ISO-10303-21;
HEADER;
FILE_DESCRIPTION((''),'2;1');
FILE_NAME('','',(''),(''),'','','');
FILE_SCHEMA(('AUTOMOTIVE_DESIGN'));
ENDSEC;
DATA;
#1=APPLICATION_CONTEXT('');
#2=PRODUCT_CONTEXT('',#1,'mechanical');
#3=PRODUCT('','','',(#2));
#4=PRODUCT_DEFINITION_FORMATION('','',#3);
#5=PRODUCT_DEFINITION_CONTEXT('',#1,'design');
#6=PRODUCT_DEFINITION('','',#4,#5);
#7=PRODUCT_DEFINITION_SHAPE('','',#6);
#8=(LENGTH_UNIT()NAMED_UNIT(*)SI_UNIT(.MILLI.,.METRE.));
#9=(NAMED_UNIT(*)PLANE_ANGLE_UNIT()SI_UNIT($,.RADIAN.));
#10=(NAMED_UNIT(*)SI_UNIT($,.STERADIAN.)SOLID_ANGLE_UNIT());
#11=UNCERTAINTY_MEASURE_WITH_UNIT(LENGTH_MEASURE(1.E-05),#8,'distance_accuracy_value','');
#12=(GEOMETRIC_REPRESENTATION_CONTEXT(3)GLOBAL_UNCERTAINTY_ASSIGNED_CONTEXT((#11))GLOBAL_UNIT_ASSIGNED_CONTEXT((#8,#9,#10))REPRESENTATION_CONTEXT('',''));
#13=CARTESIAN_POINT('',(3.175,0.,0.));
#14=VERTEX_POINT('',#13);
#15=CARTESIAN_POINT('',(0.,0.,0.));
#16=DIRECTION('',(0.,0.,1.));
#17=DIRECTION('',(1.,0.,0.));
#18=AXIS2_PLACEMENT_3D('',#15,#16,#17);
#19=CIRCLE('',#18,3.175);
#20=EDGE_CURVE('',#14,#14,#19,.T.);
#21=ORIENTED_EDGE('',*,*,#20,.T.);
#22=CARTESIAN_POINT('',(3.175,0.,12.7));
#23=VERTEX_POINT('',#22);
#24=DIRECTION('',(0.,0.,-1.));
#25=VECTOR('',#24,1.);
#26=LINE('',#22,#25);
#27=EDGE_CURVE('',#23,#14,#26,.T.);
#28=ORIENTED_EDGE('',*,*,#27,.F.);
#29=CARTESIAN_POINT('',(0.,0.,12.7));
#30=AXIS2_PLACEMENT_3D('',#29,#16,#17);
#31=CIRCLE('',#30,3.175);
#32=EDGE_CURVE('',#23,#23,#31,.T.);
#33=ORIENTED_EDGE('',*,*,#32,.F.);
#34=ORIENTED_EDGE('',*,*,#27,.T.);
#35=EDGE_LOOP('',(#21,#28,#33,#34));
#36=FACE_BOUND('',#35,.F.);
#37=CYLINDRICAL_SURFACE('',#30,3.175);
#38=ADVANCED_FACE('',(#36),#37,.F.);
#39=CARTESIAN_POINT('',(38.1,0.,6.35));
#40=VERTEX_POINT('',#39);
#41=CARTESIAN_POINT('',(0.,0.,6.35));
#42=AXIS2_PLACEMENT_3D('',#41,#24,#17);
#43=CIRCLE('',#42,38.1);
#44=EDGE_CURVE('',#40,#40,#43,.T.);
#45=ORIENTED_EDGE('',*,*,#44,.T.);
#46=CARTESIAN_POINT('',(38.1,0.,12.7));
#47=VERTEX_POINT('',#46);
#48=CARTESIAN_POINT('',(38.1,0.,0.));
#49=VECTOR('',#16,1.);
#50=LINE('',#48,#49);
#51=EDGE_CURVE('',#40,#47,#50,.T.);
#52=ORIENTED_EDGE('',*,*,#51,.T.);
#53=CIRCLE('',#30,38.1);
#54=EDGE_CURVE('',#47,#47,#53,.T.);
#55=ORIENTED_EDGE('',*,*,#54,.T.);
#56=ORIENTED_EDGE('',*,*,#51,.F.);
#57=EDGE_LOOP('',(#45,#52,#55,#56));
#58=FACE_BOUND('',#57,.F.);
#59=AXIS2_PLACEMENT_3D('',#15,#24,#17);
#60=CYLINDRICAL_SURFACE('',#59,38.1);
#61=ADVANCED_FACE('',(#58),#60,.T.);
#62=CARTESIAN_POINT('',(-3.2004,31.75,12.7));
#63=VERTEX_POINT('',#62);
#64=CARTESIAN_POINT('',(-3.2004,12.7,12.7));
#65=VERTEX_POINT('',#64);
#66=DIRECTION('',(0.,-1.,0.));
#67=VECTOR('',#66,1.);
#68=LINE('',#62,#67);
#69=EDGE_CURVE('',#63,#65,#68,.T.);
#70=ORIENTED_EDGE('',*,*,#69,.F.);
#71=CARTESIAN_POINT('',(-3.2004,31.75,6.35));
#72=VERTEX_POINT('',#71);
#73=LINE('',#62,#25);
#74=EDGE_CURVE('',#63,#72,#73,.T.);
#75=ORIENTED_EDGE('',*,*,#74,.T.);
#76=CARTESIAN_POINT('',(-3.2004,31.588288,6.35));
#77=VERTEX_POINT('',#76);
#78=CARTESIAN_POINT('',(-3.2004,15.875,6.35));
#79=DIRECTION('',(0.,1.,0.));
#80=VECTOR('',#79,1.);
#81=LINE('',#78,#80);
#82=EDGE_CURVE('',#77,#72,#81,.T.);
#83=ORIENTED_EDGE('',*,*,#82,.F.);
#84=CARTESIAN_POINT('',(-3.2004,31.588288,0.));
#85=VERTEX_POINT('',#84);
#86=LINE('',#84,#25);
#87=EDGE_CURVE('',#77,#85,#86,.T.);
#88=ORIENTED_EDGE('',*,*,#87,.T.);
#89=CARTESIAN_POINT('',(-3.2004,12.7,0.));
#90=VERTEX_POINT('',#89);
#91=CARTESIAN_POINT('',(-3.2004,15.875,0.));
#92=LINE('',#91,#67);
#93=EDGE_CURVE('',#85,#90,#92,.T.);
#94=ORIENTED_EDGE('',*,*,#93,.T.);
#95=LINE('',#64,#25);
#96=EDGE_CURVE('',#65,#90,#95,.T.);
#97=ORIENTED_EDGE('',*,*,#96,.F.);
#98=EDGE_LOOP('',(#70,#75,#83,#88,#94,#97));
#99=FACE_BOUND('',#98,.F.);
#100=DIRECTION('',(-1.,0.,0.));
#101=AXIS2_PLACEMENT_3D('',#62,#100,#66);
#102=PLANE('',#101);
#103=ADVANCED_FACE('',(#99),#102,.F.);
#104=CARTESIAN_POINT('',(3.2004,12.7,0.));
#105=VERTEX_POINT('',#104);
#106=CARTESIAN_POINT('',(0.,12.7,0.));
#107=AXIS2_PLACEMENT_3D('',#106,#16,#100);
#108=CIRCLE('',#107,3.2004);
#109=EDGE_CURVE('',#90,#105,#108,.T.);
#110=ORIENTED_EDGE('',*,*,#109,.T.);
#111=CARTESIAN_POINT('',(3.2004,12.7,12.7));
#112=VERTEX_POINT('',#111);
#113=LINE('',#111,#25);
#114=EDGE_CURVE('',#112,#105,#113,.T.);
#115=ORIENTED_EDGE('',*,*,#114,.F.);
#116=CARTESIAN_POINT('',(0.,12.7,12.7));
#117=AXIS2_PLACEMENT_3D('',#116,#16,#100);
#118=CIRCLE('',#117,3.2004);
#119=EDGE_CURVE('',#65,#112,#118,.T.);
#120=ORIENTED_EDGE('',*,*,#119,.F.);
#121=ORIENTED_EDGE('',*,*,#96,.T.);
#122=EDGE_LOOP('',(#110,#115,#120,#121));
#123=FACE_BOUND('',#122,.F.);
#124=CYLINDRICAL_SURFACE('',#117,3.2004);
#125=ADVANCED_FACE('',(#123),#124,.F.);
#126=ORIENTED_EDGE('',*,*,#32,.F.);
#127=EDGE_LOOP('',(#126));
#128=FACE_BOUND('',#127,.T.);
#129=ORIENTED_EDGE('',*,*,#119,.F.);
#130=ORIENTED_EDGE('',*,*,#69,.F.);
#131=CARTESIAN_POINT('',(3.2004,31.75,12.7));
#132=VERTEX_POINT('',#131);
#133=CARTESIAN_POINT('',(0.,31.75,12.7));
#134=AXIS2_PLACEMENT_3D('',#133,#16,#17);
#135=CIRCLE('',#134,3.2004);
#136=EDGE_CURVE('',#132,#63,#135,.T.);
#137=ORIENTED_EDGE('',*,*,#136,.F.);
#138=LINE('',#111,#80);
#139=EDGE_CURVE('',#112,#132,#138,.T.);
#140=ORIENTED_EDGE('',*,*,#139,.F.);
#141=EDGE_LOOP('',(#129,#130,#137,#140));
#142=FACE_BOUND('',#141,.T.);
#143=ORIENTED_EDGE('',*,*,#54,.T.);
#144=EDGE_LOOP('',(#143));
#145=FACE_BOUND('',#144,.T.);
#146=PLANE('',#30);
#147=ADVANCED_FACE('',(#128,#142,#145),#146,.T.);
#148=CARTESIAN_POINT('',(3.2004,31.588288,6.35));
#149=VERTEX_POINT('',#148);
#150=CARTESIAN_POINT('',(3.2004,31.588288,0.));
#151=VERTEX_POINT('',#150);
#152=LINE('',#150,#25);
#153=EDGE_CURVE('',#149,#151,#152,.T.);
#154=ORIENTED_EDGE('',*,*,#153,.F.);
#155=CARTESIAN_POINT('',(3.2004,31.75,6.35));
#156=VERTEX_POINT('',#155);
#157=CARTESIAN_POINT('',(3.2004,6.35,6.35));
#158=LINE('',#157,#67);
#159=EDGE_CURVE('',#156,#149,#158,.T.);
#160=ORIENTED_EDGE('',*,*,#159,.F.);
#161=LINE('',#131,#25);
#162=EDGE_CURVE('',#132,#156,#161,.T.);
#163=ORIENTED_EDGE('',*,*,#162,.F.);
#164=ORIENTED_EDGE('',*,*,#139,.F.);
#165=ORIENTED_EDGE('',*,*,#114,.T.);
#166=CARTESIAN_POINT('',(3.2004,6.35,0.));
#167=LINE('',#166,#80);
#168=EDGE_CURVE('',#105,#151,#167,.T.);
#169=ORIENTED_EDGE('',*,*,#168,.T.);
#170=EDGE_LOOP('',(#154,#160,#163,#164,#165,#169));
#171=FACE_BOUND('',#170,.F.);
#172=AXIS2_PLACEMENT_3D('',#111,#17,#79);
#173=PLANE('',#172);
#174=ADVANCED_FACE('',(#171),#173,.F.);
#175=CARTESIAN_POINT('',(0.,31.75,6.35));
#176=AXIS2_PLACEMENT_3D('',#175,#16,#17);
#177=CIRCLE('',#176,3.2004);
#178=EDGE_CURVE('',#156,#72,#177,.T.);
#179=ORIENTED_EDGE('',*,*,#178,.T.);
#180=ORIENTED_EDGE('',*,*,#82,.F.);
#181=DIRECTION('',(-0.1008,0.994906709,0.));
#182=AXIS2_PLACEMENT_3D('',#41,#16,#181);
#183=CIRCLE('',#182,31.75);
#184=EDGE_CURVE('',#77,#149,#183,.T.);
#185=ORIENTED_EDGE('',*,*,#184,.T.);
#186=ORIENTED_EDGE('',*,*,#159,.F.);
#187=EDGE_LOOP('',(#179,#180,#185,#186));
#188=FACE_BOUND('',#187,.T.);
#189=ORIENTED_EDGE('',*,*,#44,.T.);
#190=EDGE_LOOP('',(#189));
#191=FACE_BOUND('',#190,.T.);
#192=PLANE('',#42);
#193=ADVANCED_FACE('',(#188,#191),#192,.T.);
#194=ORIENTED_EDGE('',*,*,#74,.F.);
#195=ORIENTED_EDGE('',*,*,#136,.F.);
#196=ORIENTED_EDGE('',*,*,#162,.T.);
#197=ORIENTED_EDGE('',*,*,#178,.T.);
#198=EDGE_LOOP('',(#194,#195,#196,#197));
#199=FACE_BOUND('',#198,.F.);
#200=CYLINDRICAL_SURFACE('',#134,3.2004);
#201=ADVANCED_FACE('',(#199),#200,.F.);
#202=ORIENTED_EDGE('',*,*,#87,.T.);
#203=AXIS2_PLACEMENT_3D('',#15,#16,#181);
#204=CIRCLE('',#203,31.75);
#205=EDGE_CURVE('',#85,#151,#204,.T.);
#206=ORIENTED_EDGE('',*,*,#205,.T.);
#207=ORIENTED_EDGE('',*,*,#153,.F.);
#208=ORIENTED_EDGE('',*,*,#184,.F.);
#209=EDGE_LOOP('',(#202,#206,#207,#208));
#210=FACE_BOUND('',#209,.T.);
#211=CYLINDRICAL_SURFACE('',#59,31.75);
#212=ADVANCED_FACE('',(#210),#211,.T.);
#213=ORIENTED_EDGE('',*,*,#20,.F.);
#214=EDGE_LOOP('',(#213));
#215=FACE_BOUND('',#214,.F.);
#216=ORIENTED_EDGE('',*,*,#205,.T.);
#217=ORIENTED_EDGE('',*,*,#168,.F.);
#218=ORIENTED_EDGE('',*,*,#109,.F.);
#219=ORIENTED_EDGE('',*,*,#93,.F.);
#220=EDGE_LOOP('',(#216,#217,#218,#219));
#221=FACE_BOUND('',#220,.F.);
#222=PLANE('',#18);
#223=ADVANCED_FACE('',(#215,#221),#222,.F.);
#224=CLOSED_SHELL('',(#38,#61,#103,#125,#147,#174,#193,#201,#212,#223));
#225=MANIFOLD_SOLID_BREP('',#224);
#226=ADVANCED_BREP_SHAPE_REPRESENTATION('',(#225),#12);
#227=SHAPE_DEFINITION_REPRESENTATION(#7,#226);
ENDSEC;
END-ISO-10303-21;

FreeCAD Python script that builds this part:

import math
import FreeCAD as App
import Part
import Sketcher

V = App.Vector
Q = App.Units.Quantity

doc = App.newDocument("Part")
body = doc.addObject("PartDesign::Body", "Body")

sketch1 = doc.addObject("Sketcher::SketchObject", "Sketch")
body.addObject(sketch1)
sketch1.AttachmentSupport = (doc.XY_Plane, [""])
sketch1.MapMode = "FlatFace"
sketch1.addGeometry(Part.Circle(V(0, 0, 0), V(0, 0, 1), 38), False)
sketch1.addConstraint(Sketcher.Constraint("Coincident", 0, 3, -1, 1))
sketch1.addConstraint(Sketcher.Constraint("Diameter", 0, Q("3 in")))
pad1 = doc.addObject("PartDesign::Pad", "Pad")
body.addObject(pad1)
pad1.Profile = sketch1
pad1.Length = Q("0.5 in")

sketch2 = doc.addObject("Sketcher::SketchObject", "Sketch001")
body.addObject(sketch2)
sketch2.AttachmentSupport = (doc.XY_Plane, [""])
sketch2.MapMode = "FlatFace"
sketch2.addGeometry(Part.Circle(V(0, 0, 0), V(0, 0, 1), 38), False)
sketch2.addGeometry(Part.Circle(V(0, 0, 0), V(0, 0, 1), 32), False)
sketch2.addConstraint(Sketcher.Constraint("Coincident", 0, 3, -1, 1))
sketch2.addConstraint(Sketcher.Constraint("Coincident", 1, 3, -1, 1))
sketch2.addConstraint(Sketcher.Constraint("Diameter", 0, Q("3 in")))
sketch2.addConstraint(Sketcher.Constraint("Diameter", 1, Q("2.5 in")))
pocket1 = doc.addObject("PartDesign::Pocket", "Pocket")
body.addObject(pocket1)
pocket1.Profile = sketch2
pocket1.Length = Q("0.25 in")
pocket1.Reversed = True

sketch3 = doc.addObject("Sketcher::SketchObject", "Sketch002")
body.addObject(sketch3)
sketch3.AttachmentSupport = (doc.XY_Plane, [""])
sketch3.MapMode = "FlatFace"
sketch3.AttachmentOffset = App.Placement(V(0, 0, 0.5 * 25.4), App.Rotation())
sketch3.addGeometry(Part.Circle(V(0, 0, 0), V(0, 0, 1), 3.2), False)
sketch3.addConstraint(Sketcher.Constraint("Coincident", 0, 3, -1, 1))
sketch3.addConstraint(Sketcher.Constraint("Diameter", 0, Q("0.25 in")))
pocket2 = doc.addObject("PartDesign::Pocket", "Pocket001")
body.addObject(pocket2)
pocket2.Profile = sketch3
pocket2.Type = "ThroughAll"

sketch4 = doc.addObject("Sketcher::SketchObject", "Sketch003")
body.addObject(sketch4)
sketch4.AttachmentSupport = (doc.XY_Plane, [""])
sketch4.MapMode = "FlatFace"
sketch4.AttachmentOffset = App.Placement(V(0, 0, 0.5 * 25.4), App.Rotation())
sketch4.addGeometry(Part.LineSegment(V(-3.2, 31.8, 0), V(-3.2, 12.7, 0)), False)
sketch4.addGeometry(Part.ArcOfCircle(Part.Circle(V(0, 12.7, 0), V(0, 0, 1), 3.2), math.radians(180), math.radians(360)), False)
sketch4.addGeometry(Part.LineSegment(V(3.2, 12.7, 0), V(3.2, 31.8, 0)), False)
sketch4.addGeometry(Part.ArcOfCircle(Part.Circle(V(0, 31.8, 0), V(0, 0, 1), 3.2), math.radians(0), math.radians(180)), False)
sketch4.addConstraint(Sketcher.Constraint("Tangent", 0, 2, 1, 1))
sketch4.addConstraint(Sketcher.Constraint("Tangent", 1, 2, 2, 1))
sketch4.addConstraint(Sketcher.Constraint("Tangent", 2, 2, 3, 1))
sketch4.addConstraint(Sketcher.Constraint("Tangent", 3, 2, 0, 1))
sketch4.addConstraint(Sketcher.Constraint("Vertical", 0))
sketch4.addConstraint(Sketcher.Constraint("Vertical", 2))
sketch4.addConstraint(Sketcher.Constraint("PointOnObject", 1, 3, -2))
sketch4.addConstraint(Sketcher.Constraint("Radius", 1, Q("0.126 in")))
sketch4.addConstraint(Sketcher.Constraint("DistanceY", 0, 2, 0, 1, Q("0.75 in")))
sketch4.addConstraint(Sketcher.Constraint("DistanceY", -1, 1, 1, 3, Q("0.5 in")))
pocket3 = doc.addObject("PartDesign::Pocket", "Pocket002")
body.addObject(pocket3)
pocket3.Profile = sketch4
pocket3.Type = "ThroughAll"

doc.recompute()
